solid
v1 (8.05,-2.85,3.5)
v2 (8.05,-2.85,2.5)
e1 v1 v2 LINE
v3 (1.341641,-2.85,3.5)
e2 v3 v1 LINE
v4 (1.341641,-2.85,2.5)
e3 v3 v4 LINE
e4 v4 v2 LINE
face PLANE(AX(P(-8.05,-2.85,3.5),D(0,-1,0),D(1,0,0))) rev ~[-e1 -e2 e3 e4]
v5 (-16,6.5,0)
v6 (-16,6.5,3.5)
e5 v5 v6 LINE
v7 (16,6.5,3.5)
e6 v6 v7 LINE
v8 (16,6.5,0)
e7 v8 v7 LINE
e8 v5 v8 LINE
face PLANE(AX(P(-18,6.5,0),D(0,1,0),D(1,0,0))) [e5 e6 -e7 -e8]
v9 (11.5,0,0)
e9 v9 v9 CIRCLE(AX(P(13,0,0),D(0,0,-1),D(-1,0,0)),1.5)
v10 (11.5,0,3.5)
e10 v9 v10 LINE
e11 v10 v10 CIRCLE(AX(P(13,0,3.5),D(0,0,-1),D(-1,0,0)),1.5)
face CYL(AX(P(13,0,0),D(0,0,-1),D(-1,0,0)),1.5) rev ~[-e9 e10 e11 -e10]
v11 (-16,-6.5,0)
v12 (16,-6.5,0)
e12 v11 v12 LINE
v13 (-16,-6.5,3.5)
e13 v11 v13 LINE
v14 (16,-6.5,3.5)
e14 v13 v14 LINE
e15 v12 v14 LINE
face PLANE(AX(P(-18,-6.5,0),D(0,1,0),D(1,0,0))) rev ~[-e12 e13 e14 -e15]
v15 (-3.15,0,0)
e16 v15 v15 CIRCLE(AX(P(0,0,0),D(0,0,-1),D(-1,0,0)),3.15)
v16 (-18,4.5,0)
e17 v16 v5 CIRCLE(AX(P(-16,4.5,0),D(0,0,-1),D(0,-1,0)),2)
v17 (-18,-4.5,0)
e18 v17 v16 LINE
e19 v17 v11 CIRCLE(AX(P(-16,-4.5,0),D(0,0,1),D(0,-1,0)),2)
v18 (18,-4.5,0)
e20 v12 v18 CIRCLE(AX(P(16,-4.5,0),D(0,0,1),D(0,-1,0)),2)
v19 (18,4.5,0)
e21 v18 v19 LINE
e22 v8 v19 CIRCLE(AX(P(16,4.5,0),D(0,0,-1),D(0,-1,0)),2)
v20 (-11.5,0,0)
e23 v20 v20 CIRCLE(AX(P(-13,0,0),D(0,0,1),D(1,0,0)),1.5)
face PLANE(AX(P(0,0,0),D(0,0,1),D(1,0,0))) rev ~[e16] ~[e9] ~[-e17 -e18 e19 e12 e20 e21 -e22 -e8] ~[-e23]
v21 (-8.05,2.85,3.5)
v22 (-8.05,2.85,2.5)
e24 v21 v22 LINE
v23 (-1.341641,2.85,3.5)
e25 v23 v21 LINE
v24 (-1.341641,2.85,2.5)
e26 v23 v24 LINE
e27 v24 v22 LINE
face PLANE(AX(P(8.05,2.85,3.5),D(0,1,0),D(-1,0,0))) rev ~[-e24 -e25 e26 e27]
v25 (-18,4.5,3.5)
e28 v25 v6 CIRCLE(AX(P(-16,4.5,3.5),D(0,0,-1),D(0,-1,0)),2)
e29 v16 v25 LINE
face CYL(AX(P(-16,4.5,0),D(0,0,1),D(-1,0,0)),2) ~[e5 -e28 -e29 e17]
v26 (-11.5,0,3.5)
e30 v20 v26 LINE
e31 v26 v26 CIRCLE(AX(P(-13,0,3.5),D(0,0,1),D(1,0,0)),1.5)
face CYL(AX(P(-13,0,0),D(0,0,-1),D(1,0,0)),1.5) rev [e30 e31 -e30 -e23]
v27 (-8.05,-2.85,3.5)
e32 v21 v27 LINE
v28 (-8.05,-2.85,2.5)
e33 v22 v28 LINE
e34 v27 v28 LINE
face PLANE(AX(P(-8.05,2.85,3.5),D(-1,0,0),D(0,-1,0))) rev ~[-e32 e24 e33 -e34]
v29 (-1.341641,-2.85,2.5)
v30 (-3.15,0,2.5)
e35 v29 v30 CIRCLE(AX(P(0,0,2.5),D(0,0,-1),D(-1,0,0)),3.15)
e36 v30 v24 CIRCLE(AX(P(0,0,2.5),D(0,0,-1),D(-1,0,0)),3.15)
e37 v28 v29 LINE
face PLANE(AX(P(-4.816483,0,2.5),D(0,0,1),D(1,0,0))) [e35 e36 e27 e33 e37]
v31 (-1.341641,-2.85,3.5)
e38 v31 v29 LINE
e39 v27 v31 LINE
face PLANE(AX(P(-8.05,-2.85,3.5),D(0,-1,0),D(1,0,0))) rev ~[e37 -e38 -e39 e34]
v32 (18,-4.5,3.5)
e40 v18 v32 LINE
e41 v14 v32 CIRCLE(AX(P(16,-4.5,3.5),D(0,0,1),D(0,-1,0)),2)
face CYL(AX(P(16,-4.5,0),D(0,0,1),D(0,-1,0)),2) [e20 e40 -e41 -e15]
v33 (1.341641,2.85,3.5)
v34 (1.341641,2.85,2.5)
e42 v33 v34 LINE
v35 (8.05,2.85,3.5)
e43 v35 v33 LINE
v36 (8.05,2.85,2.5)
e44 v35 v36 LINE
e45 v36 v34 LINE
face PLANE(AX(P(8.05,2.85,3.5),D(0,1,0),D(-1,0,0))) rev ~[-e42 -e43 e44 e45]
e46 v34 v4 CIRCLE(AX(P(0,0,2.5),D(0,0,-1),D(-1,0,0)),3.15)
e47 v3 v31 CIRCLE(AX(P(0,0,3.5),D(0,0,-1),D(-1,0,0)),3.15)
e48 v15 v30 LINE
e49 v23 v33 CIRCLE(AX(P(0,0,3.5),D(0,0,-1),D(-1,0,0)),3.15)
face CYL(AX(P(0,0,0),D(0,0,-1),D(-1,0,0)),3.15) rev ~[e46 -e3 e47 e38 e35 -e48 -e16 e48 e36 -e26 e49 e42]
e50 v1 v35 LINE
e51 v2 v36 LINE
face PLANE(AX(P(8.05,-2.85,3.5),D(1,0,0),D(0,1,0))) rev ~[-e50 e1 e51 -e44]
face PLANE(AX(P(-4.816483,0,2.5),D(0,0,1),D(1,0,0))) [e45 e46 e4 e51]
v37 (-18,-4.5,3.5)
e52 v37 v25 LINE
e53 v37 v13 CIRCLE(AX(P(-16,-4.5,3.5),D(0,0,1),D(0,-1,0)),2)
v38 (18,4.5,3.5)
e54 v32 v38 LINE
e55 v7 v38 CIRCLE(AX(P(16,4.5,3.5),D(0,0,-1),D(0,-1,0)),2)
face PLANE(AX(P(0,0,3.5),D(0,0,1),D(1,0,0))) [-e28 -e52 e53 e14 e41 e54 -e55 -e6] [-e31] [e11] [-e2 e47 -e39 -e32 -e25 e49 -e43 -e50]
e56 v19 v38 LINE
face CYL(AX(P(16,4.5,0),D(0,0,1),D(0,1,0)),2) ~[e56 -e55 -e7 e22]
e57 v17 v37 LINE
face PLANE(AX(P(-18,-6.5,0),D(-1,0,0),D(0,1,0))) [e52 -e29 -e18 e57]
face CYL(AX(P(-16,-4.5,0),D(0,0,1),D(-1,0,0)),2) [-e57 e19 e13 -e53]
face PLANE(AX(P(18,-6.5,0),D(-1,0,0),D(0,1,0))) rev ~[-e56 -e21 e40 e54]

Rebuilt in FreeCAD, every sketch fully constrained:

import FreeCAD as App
import Part
import Sketcher

V = App.Vector
Q = App.Units.Quantity


def edges_at(feature, points):
    """Names of the edges that pass closest to the given points."""
    edges = feature.Shape.Edges
    near = lambda p: min(range(len(edges)), key=lambda i: edges[i].distToShape(Part.Vertex(*p))[0])
    return sorted({f"Edge{near(p) + 1}" for p in points})

doc = App.newDocument("Part")
body = doc.addObject("PartDesign::Body", "Body")

sketch1 = doc.addObject("Sketcher::SketchObject", "Sketch")
body.addObject(sketch1)
sketch1.AttachmentSupport = (doc.XY_Plane, [""])
sketch1.MapMode = "FlatFace"
sketch1.addGeometry([
    Part.LineSegment(V(-18, 6.5, 0), V(-18, -6.5, 0)),
    Part.LineSegment(V(-18, -6.5, 0), V(18, -6.5, 0)),
    Part.LineSegment(V(18, -6.5, 0), V(18, 6.5, 0)),
    Part.LineSegment(V(18, 6.5, 0), V(-18, 6.5, 0)),
    Part.Circle(V(-13, 0, 0), V(0, 0, 1), 1.5),
    Part.Circle(V(0, 0, 0), V(0, 0, 1), 3.1),
    Part.Circle(V(13, 0, 0), V(0, 0, 1), 1.5),
], False)
sketch1.addConstraint([
    Sketcher.Constraint("Coincident", 0, 2, 1, 1),
    Sketcher.Constraint("Coincident", 1, 2, 2, 1),
    Sketcher.Constraint("Coincident", 2, 2, 3, 1),
    Sketcher.Constraint("Coincident", 3, 2, 0, 1),
    Sketcher.Constraint("Vertical", 0),
    Sketcher.Constraint("Horizontal", 1),
    Sketcher.Constraint("Vertical", 2),
    Sketcher.Constraint("Horizontal", 3),
    Sketcher.Constraint("Coincident", 5, 3, -1, 1),
    Sketcher.Constraint("Equal", 4, 6),
    Sketcher.Constraint("Symmetric", 4, 3, 6, 3, -1, 1),
    Sketcher.Constraint("Symmetric", 0, 2, 2, 2, -1, 1),
    Sketcher.Constraint("PointOnObject", 4, 3, -1),
    Sketcher.Constraint("Diameter", 4, Q("3 mm")),
    Sketcher.Constraint("Diameter", 5, Q("6.3 mm")),
    Sketcher.Constraint("DistanceX", 1, 1, 1, 2, Q("36 mm")),
    Sketcher.Constraint("DistanceY", 0, 2, 0, 1, Q("13 mm")),
    Sketcher.Constraint("DistanceX", 4, 3, -1, 1, Q("13 mm")),
])
pad1 = doc.addObject("PartDesign::Pad", "Pad")
body.addObject(pad1)
pad1.Profile = sketch1
pad1.Length = 3.5
doc.recompute()

fillet = doc.addObject("PartDesign::Fillet", "Fillet")
body.addObject(fillet)
fillet.Base = (pad1, edges_at(pad1, [
    (-18, 6.5, 1.75),
    (-18, -6.5, 1.75),
    (18, -6.5, 1.75),
    (18, 6.5, 1.75),
]))
fillet.Radius = 2

sketch2 = doc.addObject("Sketcher::SketchObject", "Sketch001")
body.addObject(sketch2)
sketch2.AttachmentSupport = (doc.XY_Plane, [""])
sketch2.MapMode = "FlatFace"
sketch2.AttachmentOffset = App.Placement(V(0, 0, 3.5), App.Rotation())
sketch2.addGeometry([
    Part.LineSegment(V(-8, 3, 0), V(-8, -3, 0)),
    Part.LineSegment(V(-8, -3, 0), V(8, -3, 0)),
    Part.LineSegment(V(8, -3, 0), V(8, 3, 0)),
    Part.LineSegment(V(8, 3, 0), V(-8, 3, 0)),
], False)
sketch2.addConstraint([
    Sketcher.Constraint("Coincident", 0, 2, 1, 1),
    Sketcher.Constraint("Coincident", 1, 2, 2, 1),
    Sketcher.Constraint("Coincident", 2, 2, 3, 1),
    Sketcher.Constraint("Coincident", 3, 2, 0, 1),
    Sketcher.Constraint("Vertical", 0),
    Sketcher.Constraint("Horizontal", 1),
    Sketcher.Constraint("Vertical", 2),
    Sketcher.Constraint("Horizontal", 3),
    Sketcher.Constraint("Symmetric", 0, 2, 2, 2, -1, 1),
    Sketcher.Constraint("DistanceX", 1, 1, 1, 2, Q("16.1 mm")),
    Sketcher.Constraint("DistanceY", 0, 2, 0, 1, Q("5.7 mm")),
])
pocket1 = doc.addObject("PartDesign::Pocket", "Pocket")
body.addObject(pocket1)
pocket1.Profile = sketch2
pocket1.Length = 1

doc.recompute()
